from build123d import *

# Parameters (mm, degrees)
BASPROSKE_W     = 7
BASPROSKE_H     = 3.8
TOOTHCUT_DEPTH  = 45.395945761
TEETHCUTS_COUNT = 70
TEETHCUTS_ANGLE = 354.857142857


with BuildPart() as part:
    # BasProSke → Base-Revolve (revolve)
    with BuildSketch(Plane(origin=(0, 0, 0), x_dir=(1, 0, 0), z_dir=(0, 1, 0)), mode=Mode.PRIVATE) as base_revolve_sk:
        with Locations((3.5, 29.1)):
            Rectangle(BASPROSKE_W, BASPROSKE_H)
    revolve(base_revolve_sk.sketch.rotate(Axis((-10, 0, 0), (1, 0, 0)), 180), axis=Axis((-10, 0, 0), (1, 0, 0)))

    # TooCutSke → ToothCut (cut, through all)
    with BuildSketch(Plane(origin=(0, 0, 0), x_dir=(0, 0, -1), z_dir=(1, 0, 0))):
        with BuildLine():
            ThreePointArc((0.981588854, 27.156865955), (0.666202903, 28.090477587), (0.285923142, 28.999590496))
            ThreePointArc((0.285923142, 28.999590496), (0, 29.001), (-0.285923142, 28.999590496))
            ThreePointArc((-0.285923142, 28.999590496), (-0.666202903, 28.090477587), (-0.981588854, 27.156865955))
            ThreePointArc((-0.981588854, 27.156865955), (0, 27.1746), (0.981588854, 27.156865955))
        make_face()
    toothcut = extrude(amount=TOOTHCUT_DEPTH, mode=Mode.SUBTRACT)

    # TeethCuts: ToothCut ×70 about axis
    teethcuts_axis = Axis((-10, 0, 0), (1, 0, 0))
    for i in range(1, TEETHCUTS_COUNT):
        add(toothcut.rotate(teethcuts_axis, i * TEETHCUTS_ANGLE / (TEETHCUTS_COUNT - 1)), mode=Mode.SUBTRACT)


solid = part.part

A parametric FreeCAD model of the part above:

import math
import FreeCAD as App
import Part
import Sketcher
Q = App.Units.Quantity

doc = App.newDocument("Part")
body = doc.addObject("PartDesign::Body", "Body")

# Sketch on XZ plane
sketch1 = body.newObject("Sketcher::SketchObject", "Sketch")
sketch1.AttachmentSupport = (doc.getObject("XZ_Plane"), [""])
sketch1.MapMode = "FlatFace"
sketch1.addGeometry(Part.LineSegment(App.Vector(0, -31, 0), App.Vector(0, -27.2, 0)), False)
sketch1.addGeometry(Part.LineSegment(App.Vector(0, -27.2, 0), App.Vector(7, -27.2, 0)), False)
sketch1.addGeometry(Part.LineSegment(App.Vector(7, -27.2, 0), App.Vector(7, -31, 0)), False)
sketch1.addGeometry(Part.LineSegment(App.Vector(7, -31, 0), App.Vector(0, -31, 0)), False)
sketch1.addConstraint(Sketcher.Constraint("Coincident", 0, 2, 1, 1))
sketch1.addConstraint(Sketcher.Constraint("Coincident", 1, 2, 2, 1))
sketch1.addConstraint(Sketcher.Constraint("Coincident", 2, 2, 3, 1))
sketch1.addConstraint(Sketcher.Constraint("Coincident", 3, 2, 0, 1))
sketch1.addConstraint(Sketcher.Constraint("Vertical", 0))
sketch1.addConstraint(Sketcher.Constraint("Horizontal", 1))
sketch1.addConstraint(Sketcher.Constraint("Vertical", 2))
sketch1.addConstraint(Sketcher.Constraint("Horizontal", 3))
sketch1.addConstraint(Sketcher.Constraint("PointOnObject", 0, 2, -2))
sketch1.addConstraint(Sketcher.Constraint("DistanceX", 1, 1, 1, 2, Q("7 mm")))
sketch1.addConstraint(Sketcher.Constraint("DistanceY", 0, 1, 0, 2, Q("3.8 mm")))
sketch1.addConstraint(Sketcher.Constraint("DistanceY", 2, 2, -1, 1, Q("31 mm")))
revolution = body.newObject("PartDesign::Revolution", "Revolution")
revolution.Profile = sketch1
revolution.ReferenceAxis = (sketch1, ["H_Axis"])
revolution.Angle = 360

# Sketch on YZ plane
sketch2 = body.newObject("Sketcher::SketchObject", "Sketch001")
sketch2.AttachmentSupport = (doc.getObject("YZ_Plane"), [""])
sketch2.MapMode = "FlatFace"
sketch2.addGeometry(Part.ArcOfCircle(Part.Circle(App.Vector(23.145822, 12.431521, 0), App.Vector(0, 0, 1), 14), math.radians(-73.351282), math.radians(-65.28365)), False)
sketch2.addGeometry(Part.ArcOfCircle(Part.Circle(App.Vector(0.000008, 0, 0), App.Vector(0, 0, 1), 29.000992), math.radians(-0.564893), math.radians(0.564893)), False)
sketch2.addGeometry(Part.ArcOfCircle(Part.Circle(App.Vector(23.145822, -12.431521, 0), App.Vector(0, 0, 1), 14), math.radians(65.28365), math.radians(73.351282)), False)
sketch2.addGeometry(Part.ArcOfCircle(Part.Circle(App.Vector(0, 0, 0), App.Vector(0, 0, 1), 27.1746), math.radians(-2.070063), math.radians(2.070063)), False)
sketch2.addConstraint(Sketcher.Constraint("Coincident", 0, 2, 1, 1))
sketch2.addConstraint(Sketcher.Constraint("Coincident", 1, 2, 2, 1))
sketch2.addConstraint(Sketcher.Constraint("Coincident", 2, 2, 3, 2))
sketch2.addConstraint(Sketcher.Constraint("Coincident", 3, 1, 0, 1))
sketch2.addConstraint(Sketcher.Constraint("Coincident", 1, 3, -1, 1))
sketch2.addConstraint(Sketcher.Constraint("Coincident", 3, 3, -1, 1))
sketch2.addConstraint(Sketcher.Constraint("Equal", 0, 2))
sketch2.addConstraint(Sketcher.Constraint("Symmetric", 0, 3, 2, 3, -1))
sketch2.addConstraint(Sketcher.Constraint("Radius", 0, Q("14 mm")))
sketch2.addConstraint(Sketcher.Constraint("Radius", 3, Q("27.1746 mm")))
sketch2.addConstraint(Sketcher.Constraint("Radius", 1, Q("29.000992 mm")))
sketch2.addConstraint(Sketcher.Constraint("DistanceY", 2, 3, 0, 2, Q("12.145598 mm")))
sketch2.addConstraint(Sketcher.Constraint("DistanceY", -1, 1, 0, 3, Q("12.431521 mm")))
pocket1 = body.newObject("PartDesign::Pocket", "Pocket")
pocket1.Profile = sketch2
pocket1.Type = "ThroughAll"
pocket1.Reversed = True
doc.recompute()

polarpattern = body.newObject("PartDesign::PolarPattern", "PolarPattern")
polarpattern.Originals = [pocket1]
polarpattern.Axis = (doc.getObject("X_Axis"), [""])
polarpattern.Angle = 360
polarpattern.Occurrences = 70
body.Tip = polarpattern

doc.recompute()
